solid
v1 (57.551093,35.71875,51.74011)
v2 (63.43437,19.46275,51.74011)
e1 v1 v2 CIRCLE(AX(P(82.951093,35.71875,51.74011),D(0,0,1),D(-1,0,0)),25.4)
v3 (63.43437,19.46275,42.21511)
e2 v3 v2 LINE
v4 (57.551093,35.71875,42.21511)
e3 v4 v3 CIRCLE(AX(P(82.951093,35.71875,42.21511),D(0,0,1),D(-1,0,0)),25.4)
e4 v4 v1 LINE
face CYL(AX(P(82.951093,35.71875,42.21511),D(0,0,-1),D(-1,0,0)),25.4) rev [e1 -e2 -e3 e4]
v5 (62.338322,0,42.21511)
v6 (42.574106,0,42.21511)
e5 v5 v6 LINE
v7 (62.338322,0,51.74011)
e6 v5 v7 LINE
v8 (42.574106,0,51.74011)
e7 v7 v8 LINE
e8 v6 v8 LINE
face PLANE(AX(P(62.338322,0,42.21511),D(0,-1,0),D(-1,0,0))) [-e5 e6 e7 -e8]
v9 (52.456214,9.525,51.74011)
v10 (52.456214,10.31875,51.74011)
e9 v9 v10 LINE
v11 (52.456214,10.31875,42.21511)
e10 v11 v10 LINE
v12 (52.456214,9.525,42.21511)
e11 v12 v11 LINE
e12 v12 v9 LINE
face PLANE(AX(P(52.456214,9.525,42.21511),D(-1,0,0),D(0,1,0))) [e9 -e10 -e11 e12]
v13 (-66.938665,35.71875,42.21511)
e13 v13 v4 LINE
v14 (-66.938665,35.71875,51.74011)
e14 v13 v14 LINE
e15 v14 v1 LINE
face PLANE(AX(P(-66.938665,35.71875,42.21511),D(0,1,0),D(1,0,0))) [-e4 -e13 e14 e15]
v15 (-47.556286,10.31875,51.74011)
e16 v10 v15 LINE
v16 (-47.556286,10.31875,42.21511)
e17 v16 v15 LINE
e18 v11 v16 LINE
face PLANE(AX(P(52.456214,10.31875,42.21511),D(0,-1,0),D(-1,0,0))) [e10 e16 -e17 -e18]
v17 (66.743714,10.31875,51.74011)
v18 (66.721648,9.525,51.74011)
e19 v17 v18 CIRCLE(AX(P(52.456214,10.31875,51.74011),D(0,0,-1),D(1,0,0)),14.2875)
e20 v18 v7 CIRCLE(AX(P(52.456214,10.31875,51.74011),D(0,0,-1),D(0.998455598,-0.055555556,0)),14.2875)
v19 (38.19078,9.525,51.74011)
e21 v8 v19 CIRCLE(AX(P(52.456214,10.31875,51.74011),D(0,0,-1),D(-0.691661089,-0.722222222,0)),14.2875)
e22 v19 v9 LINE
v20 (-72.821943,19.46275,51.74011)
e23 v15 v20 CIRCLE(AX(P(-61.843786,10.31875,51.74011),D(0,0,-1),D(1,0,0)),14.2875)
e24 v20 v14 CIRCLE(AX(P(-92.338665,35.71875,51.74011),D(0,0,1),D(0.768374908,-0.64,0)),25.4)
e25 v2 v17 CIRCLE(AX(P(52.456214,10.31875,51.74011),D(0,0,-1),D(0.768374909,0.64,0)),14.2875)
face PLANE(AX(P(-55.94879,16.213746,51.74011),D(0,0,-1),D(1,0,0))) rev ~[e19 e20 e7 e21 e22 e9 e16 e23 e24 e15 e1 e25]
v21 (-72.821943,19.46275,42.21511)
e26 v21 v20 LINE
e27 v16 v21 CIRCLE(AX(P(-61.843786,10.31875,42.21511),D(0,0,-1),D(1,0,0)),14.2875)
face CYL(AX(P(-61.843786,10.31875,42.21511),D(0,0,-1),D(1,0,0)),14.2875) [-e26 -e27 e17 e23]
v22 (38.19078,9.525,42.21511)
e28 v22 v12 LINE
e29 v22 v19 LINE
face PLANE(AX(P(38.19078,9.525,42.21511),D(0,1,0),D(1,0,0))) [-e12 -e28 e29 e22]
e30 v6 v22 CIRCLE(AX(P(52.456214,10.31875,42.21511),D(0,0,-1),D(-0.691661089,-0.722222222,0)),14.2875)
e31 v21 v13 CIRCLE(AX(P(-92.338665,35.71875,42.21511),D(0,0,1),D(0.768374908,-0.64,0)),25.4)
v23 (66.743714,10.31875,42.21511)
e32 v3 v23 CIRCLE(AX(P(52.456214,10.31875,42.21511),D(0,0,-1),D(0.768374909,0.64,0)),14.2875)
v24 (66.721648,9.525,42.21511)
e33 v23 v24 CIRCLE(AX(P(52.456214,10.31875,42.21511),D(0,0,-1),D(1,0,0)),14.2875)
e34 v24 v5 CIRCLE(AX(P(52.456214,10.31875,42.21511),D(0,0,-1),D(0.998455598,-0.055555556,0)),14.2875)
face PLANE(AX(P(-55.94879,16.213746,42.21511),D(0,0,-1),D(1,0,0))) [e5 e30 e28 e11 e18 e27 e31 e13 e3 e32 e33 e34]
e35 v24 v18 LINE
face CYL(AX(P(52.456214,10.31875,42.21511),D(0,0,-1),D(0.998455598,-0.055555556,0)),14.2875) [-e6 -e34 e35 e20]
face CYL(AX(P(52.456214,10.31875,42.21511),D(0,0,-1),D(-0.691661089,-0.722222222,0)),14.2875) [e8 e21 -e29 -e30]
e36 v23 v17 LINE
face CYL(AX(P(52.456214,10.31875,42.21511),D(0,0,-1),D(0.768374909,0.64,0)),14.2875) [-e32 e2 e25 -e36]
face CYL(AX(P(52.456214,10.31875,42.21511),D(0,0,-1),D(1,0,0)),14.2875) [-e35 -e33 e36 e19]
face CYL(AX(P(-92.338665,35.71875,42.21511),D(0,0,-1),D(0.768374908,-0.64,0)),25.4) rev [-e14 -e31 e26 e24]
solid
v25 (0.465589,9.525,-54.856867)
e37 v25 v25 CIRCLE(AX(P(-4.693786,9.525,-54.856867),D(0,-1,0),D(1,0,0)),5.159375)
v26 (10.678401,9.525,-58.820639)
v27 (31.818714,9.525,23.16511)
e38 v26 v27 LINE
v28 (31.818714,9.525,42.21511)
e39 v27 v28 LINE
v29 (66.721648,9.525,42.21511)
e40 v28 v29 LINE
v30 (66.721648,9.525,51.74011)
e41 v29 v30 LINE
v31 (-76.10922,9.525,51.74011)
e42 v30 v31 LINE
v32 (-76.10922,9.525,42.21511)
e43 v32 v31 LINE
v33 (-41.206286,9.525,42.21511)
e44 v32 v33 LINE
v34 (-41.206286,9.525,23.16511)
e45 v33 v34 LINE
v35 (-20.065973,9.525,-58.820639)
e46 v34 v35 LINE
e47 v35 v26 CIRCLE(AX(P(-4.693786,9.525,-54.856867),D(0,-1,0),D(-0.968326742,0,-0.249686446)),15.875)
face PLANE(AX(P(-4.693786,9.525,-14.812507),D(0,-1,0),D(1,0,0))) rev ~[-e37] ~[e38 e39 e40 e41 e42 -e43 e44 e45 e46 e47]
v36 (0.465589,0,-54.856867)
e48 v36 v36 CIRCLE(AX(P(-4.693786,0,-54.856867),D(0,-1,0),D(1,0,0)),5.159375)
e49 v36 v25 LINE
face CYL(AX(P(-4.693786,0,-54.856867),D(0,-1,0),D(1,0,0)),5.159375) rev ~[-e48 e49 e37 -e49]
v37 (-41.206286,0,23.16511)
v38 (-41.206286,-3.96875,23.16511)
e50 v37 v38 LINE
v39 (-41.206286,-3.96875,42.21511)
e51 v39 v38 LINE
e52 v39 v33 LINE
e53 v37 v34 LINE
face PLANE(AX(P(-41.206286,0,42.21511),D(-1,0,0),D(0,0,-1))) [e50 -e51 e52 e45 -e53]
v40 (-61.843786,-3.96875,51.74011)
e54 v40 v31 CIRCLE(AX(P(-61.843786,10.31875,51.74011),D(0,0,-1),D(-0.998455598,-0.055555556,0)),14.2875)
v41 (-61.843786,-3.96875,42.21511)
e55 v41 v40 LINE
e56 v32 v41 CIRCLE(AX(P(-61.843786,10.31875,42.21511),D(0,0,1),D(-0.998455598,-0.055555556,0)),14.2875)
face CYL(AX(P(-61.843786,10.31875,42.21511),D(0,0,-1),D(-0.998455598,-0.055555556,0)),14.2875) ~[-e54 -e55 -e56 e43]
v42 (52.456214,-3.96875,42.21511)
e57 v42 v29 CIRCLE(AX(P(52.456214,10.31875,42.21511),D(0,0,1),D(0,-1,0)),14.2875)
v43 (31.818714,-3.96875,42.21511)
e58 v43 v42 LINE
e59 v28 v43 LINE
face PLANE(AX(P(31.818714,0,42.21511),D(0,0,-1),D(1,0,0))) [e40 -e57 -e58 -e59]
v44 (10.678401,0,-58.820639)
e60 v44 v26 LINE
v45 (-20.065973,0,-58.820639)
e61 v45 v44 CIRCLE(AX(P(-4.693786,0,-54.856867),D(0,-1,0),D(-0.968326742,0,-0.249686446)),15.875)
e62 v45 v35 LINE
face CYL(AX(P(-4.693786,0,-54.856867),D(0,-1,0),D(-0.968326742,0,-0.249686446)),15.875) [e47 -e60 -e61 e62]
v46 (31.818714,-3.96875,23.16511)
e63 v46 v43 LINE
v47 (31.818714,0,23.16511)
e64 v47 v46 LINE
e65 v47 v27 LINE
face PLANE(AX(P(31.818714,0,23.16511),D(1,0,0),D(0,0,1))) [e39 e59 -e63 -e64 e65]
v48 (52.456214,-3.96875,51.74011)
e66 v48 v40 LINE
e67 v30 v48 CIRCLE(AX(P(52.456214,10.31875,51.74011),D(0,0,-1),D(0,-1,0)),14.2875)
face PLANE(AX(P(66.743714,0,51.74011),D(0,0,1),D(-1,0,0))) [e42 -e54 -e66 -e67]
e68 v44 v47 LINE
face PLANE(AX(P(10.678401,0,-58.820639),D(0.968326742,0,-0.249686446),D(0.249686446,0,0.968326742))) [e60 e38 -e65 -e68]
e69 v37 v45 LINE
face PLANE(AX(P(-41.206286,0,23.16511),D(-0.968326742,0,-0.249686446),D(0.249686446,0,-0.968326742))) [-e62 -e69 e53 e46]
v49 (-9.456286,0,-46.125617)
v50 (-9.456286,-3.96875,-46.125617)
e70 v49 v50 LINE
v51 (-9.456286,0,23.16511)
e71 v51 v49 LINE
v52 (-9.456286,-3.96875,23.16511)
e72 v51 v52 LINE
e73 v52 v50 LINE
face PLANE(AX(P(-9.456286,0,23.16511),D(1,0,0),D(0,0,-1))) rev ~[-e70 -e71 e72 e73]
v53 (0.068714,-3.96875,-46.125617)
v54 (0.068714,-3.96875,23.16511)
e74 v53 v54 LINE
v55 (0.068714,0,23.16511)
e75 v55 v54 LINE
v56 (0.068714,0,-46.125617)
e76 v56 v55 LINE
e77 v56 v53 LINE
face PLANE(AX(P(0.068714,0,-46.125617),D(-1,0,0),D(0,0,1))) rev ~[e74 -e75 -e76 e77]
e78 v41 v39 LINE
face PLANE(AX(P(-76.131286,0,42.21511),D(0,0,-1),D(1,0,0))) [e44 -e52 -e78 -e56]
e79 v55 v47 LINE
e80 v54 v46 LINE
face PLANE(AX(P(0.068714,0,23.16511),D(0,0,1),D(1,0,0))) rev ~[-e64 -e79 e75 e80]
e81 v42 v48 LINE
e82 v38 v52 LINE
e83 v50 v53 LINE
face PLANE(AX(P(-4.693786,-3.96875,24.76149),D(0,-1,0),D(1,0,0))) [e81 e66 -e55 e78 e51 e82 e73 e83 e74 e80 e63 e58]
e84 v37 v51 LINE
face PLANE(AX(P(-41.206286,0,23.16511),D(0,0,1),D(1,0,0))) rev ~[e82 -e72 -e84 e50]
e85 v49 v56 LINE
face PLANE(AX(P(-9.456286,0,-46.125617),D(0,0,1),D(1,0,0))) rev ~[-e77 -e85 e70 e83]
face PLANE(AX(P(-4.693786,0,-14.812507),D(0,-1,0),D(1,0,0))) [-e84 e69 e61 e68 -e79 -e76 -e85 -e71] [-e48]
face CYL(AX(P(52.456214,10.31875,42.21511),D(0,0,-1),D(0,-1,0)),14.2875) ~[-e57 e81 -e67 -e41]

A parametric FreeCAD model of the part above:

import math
import FreeCAD as App
import Part
import Sketcher
Q = App.Units.Quantity


def add_polygon(sketch, points):
    """Adds a closed chain of lines whose ends are joined by coincident constraints."""
    first, n = sketch.GeometryCount, len(points)
    for a, b in zip(points, points[1:] + points[:1]):
        sketch.addGeometry(Part.LineSegment(App.Vector(*a, 0), App.Vector(*b, 0)), False)
    for i in range(n):
        sketch.addConstraint(Sketcher.Constraint("Coincident", first + i, 2, first + (i + 1) % n, 1))

doc = App.newDocument("Part")
body = doc.addObject("PartDesign::Body", "Body")

# Sketch on XZ plane
sketch1 = body.newObject("Sketcher::SketchObject", "Sketch")
sketch1.AttachmentSupport = (doc.getObject("XZ_Plane"), [""])
sketch1.MapMode = "FlatFace"
add_polygon(sketch1, [(-41, 42), (-41, 23), (-9, 23), (-9, -46), (0, -46), (0, 23), (32, 23), (32, 42), (67, 42), (67, 52), (-76, 52), (-76, 42)])  # lines 0-11
sketch1.addConstraint([
    Sketcher.Constraint("Vertical", 0),
    Sketcher.Constraint("Horizontal", 1),
    Sketcher.Constraint("Vertical", 2),
    Sketcher.Constraint("Horizontal", 3),
    Sketcher.Constraint("Vertical", 4),
    Sketcher.Constraint("Horizontal", 5),
    Sketcher.Constraint("Vertical", 6),
    Sketcher.Constraint("Horizontal", 7),
    Sketcher.Constraint("Vertical", 8),
    Sketcher.Constraint("Horizontal", 9),
    Sketcher.Constraint("Vertical", 10),
    Sketcher.Constraint("Horizontal", 11),
    Sketcher.Constraint("Horizontal", 1, 2, 4, 2),
    Sketcher.Constraint("Horizontal", 7, 2, 10, 2),
    Sketcher.Constraint("Equal", 1, 5),
    Sketcher.Constraint("Equal", 7, 11),
    Sketcher.Constraint("Equal", 3, 8),
    Sketcher.Constraint("DistanceX", 1, 2, 7, 2, Q("3 in")),
    Sketcher.Constraint("DistanceX", 1, 1, 1, 2, Q("1.25 in")),
    Sketcher.Constraint("DistanceY", 0, 2, 0, 1, Q("0.75 in")),
    Sketcher.Constraint("DistanceX", 3, 1, 3, 2, Q("0.375 in")),
    Sketcher.Constraint("DistanceY", 2, 2, 2, 1, Q("69.290727 mm")),
    Sketcher.Constraint("DistanceY", -1, 1, 0, 2, Q("23.16511 mm")),
    Sketcher.Constraint("DistanceX", 0, 2, -1, 1, Q("41.206286 mm")),
])
pad1 = body.newObject("PartDesign::Pad", "Pad")
pad1.Profile = sketch1
pad1.Length = Q("0.15625 in")
body2 = doc.addObject("PartDesign::Body", "Body001")

# Sketch on XZ plane
sketch2 = body2.newObject("Sketcher::SketchObject", "Sketch001")
sketch2.AttachmentSupport = (doc.getObject("XZ_Plane001"), [""])
sketch2.MapMode = "FlatFace"
sketch2.addGeometry([
    Part.LineSegment(App.Vector(-41, 23, 0), App.Vector(-20, -59, 0)),  # 0
    Part.ArcOfCircle(Part.Circle(App.Vector(-5, -55, 0), App.Vector(0, 0, 1), 16), math.radians(-166), math.radians(-14)),  # 1
    Part.LineSegment(App.Vector(11, -59, 0), App.Vector(32, 23, 0)),  # 2
    Part.LineSegment(App.Vector(32, 23, 0), App.Vector(32, 42, 0)),  # 3
    Part.LineSegment(App.Vector(32, 42, 0), App.Vector(67, 42, 0)),  # 4
    Part.LineSegment(App.Vector(67, 42, 0), App.Vector(67, 52, 0)),  # 5
    Part.LineSegment(App.Vector(67, 52, 0), App.Vector(-76, 52, 0)),  # 6
    Part.LineSegment(App.Vector(-76, 52, 0), App.Vector(-76, 42, 0)),  # 7
    Part.LineSegment(App.Vector(-76, 42, 0), App.Vector(-41, 42, 0)),  # 8
    Part.LineSegment(App.Vector(-41, 42, 0), App.Vector(-41, 23, 0)),  # 9
    Part.Circle(App.Vector(-5, -55, 0), App.Vector(0, 0, 1), 5),  # 10
], False)
sketch2.addConstraint([
    Sketcher.Constraint("Tangent", 0, 2, 1, 1),
    Sketcher.Constraint("Tangent", 1, 2, 2, 1),
    Sketcher.Constraint("Coincident", 2, 2, 3, 1),
    Sketcher.Constraint("Coincident", 3, 2, 4, 1),
    Sketcher.Constraint("Coincident", 4, 2, 5, 1),
    Sketcher.Constraint("Coincident", 5, 2, 6, 1),
    Sketcher.Constraint("Coincident", 6, 2, 7, 1),
    Sketcher.Constraint("Coincident", 7, 2, 8, 1),
    Sketcher.Constraint("Coincident", 8, 2, 9, 1),
    Sketcher.Constraint("Coincident", 9, 2, 0, 1),
    Sketcher.Constraint("Vertical", 3),
    Sketcher.Constraint("Horizontal", 4),
    Sketcher.Constraint("Vertical", 5),
    Sketcher.Constraint("Horizontal", 6),
    Sketcher.Constraint("Vertical", 7),
    Sketcher.Constraint("Horizontal", 8),
    Sketcher.Constraint("Vertical", 9),
    Sketcher.Constraint("Coincident", 10, 3, 1, 3),
    Sketcher.Constraint("Horizontal", 0, 2, 1, 2),
    Sketcher.Constraint("Horizontal", 4, 2, 7, 2),
    Sketcher.Constraint("Horizontal", 2, 2, 9, 2),
    Sketcher.Constraint("Equal", 4, 8),
    Sketcher.Constraint("Diameter", 10, Q("0.40625 in")),
    Sketcher.Constraint("Radius", 1, Q("0.625 in")),
    Sketcher.Constraint("DistanceY", 3, 1, 3, 2, Q("0.75 in")),
    Sketcher.Constraint("DistanceX", 4, 1, 4, 2, Q("1.375 in")),
    Sketcher.Constraint("DistanceX", 6, 2, 6, 1, Q("5.625 in")),
    Sketcher.Constraint("DistanceY", 5, 1, 5, 2, Q("0.375 in")),
    Sketcher.Constraint("DistanceX", -1, 1, 1, 2, Q("10.678401 mm")),
    Sketcher.Constraint("DistanceY", 0, 2, -1, 1, Q("58.820639 mm")),
    Sketcher.Constraint("DistanceY", -1, 1, 2, 2, Q("23.16511 mm")),
])
pad2 = body2.newObject("PartDesign::Pad", "Pad001")
pad2.Profile = sketch2
pad2.Length = Q("0.375 in")
pad2.Reversed = True
body3 = doc.addObject("PartDesign::Body", "Body002")

# Sketch on XY plane
sketch3 = body3.newObject("Sketcher::SketchObject", "Sketch002")
sketch3.AttachmentSupport = (doc.getObject("XY_Plane002"), [""])
sketch3.MapMode = "FlatFace"
sketch3.AttachmentOffset = App.Placement(App.Vector(0, 0, 42.21511), App.Rotation())
sketch3.addGeometry([
    Part.ArcOfCircle(Part.Circle(App.Vector(-92.3, 35.7, 0), App.Vector(0, 0, 1), 25.4), math.radians(-40), math.radians(0)),  # 0
    Part.LineSegment(App.Vector(-66.9, 35.7, 0), App.Vector(57.6, 35.7, 0)),  # 1
    Part.ArcOfCircle(Part.Circle(App.Vector(83, 35.7, 0), App.Vector(0, 0, 1), 25.4), math.radians(180), math.radians(220)),  # 2
    Part.ArcOfCircle(Part.Circle(App.Vector(52.5, 10.3, 0), App.Vector(0, 0, 1), 14.3), math.radians(0), math.radians(40)),  # 3
    Part.ArcOfCircle(Part.Circle(App.Vector(52.5, 10.3, 0), App.Vector(0, 0, 1), 14.3), math.radians(-3.18), math.radians(0)),  # 4
    Part.ArcOfCircle(Part.Circle(App.Vector(52.5, 10.3, 0), App.Vector(0, 0, 1), 14.3), math.radians(-46), math.radians(-3)),  # 5
    Part.LineSegment(App.Vector(62.3, 0, 0), App.Vector(42.6, 0, 0)),  # 6
    Part.ArcOfCircle(Part.Circle(App.Vector(52.5, 10.3, 0), App.Vector(0, 0, 1), 14.3), math.radians(-177), math.radians(-134)),  # 7
    Part.LineSegment(App.Vector(38.2, 9.5, 0), App.Vector(52.5, 9.5, 0)),  # 8
    Part.LineSegment(App.Vector(52.5, 9.5, 0), App.Vector(52.5, 10.3, 0)),  # 9
    Part.LineSegment(App.Vector(52.5, 10.3, 0), App.Vector(-47.6, 10.3, 0)),  # 10
    Part.ArcOfCircle(Part.Circle(App.Vector(-61.8, 10.3, 0), App.Vector(0, 0, 1), 14.3), math.radians(140), math.radians(360)),  # 11
], False)
sketch3.addConstraint([
    Sketcher.Constraint("Coincident", 0, 2, 1, 1),
    Sketcher.Constraint("Coincident", 1, 2, 2, 1),
    Sketcher.Constraint("Tangent", 2, 2, 3, 2),
    Sketcher.Constraint("Tangent", 3, 1, 4, 2),
    Sketcher.Constraint("Tangent", 4, 1, 5, 2),
    Sketcher.Constraint("Coincident", 5, 1, 6, 1),
    Sketcher.Constraint("Coincident", 6, 2, 7, 2),
    Sketcher.Constraint("Coincident", 7, 1, 8, 1),
    Sketcher.Constraint("Coincident", 8, 2, 9, 1),
    Sketcher.Constraint("Coincident", 9, 2, 10, 1),
    Sketcher.Constraint("Coincident", 10, 2, 11, 2),
    Sketcher.Constraint("Tangent", 11, 1, 0, 1),
    Sketcher.Constraint("Horizontal", 1),
    Sketcher.Constraint("Horizontal", 6),
    Sketcher.Constraint("Horizontal", 8),
    Sketcher.Constraint("Vertical", 9),
    Sketcher.Constraint("Horizontal", 10),
    Sketcher.Constraint("Coincident", 5, 3, 3, 3),
    Sketcher.Constraint("Coincident", 7, 3, 3, 3),
    Sketcher.Constraint("Coincident", 9, 2, 3, 3),
    Sketcher.Constraint("Equal", 0, 2),
    Sketcher.Constraint("Equal", 5, 7),
    Sketcher.Constraint("Equal", 7, 11),
    Sketcher.Constraint("PointOnObject", 5, 1, -1),
    Sketcher.Constraint("Horizontal", 0, 3, 2, 3),
    Sketcher.Constraint("Horizontal", 7, 3, 11, 3),
    Sketcher.Constraint("Horizontal", 2, 3, 0, 2),
    Sketcher.Constraint("Horizontal", 11, 3, 3, 1),
    Sketcher.Constraint("Horizontal", 4, 1, 7, 1),
    Sketcher.Constraint("Radius", 0, Q("1 in")),
    Sketcher.Constraint("Radius", 3, Q("0.5625 in")),
    Sketcher.Constraint("DistanceY", 3, 3, 2, 3, Q("1 in")),
    Sketcher.Constraint("DistanceX", 11, 3, 4, 3, Q("4.5 in")),
    Sketcher.Constraint("DistanceY", 9, 1, 9, 2, Q("0.03125 in")),
    Sketcher.Constraint("DistanceY", -1, 1, 0, 3, Q("1.40625 in")),
    Sketcher.Constraint("DistanceX", -1, 1, 2, 2, Q("63.43437 mm")),
])
pad3 = body3.newObject("PartDesign::Pad", "Pad002")
pad3.Profile = sketch3
pad3.Length = Q("0.375 in")
doc.recompute()

boolean = body.newObject("PartDesign::Boolean", "Boolean")
boolean.Type = "Fuse"
boolean.addObjects([body2])

# Sketch on XY plane
sketch4 = body.newObject("Sketcher::SketchObject", "Sketch003")
sketch4.AttachmentSupport = (doc.getObject("XY_Plane"), [""])
sketch4.MapMode = "FlatFace"
sketch4.AttachmentOffset = App.Placement(App.Vector(0, 0, 42.21511), App.Rotation())
sketch4.addGeometry([
    Part.LineSegment(App.Vector(-76.131, 9.525, 0), App.Vector(-76.109, 9.525, 0)),  # 0
    Part.ArcOfCircle(Part.Circle(App.Vector(-61.844, 10.319, 0), App.Vector(0, 0, 1), 14.287), math.radians(-177), math.radians(-90)),  # 1
    Part.LineSegment(App.Vector(-61.844, -3.969, 0), App.Vector(-76.131, -3.969, 0)),  # 2
    Part.LineSegment(App.Vector(-76.131, -3.969, 0), App.Vector(-76.131, 9.525, 0)),  # 3
    Part.ArcOfCircle(Part.Circle(App.Vector(52.456, 10.319, 0), App.Vector(0, 0, 1), 14.287), math.radians(-90), math.radians(-3)),  # 4
    Part.LineSegment(App.Vector(66.722, 9.525, 0), App.Vector(66.744, 9.525, 0)),  # 5
    Part.LineSegment(App.Vector(66.744, 9.525, 0), App.Vector(66.744, -3.969, 0)),  # 6
    Part.LineSegment(App.Vector(66.744, -3.969, 0), App.Vector(52.456, -3.969, 0)),  # 7
], False)
sketch4.addConstraint([
    Sketcher.Constraint("Coincident", 0, 2, 1, 1),
    Sketcher.Constraint("Tangent", 1, 2, 2, 1),
    Sketcher.Constraint("Coincident", 2, 2, 3, 1),
    Sketcher.Constraint("Coincident", 3, 2, 0, 1),
    Sketcher.Constraint("Coincident", 4, 2, 5, 1),
    Sketcher.Constraint("Coincident", 5, 2, 6, 1),
    Sketcher.Constraint("Coincident", 6, 2, 7, 1),
    Sketcher.Constraint("Tangent", 7, 2, 4, 1),
    Sketcher.Constraint("Horizontal", 0),
    Sketcher.Constraint("Horizontal", 2),
    Sketcher.Constraint("Vertical", 3),
    Sketcher.Constraint("Horizontal", 5),
    Sketcher.Constraint("Vertical", 6),
    Sketcher.Constraint("Horizontal", 7),
    Sketcher.Constraint("Equal", 1, 4),
    Sketcher.Constraint("Horizontal", 1, 3, 4, 3),
    Sketcher.Constraint("Horizontal", 3, 2, 4, 2),
    Sketcher.Constraint("Equal", 0, 5),
    Sketcher.Constraint("Radius", 1, Q("0.5625 in")),
    Sketcher.Constraint("DistanceX", 1, 3, 4, 3, Q("4.5 in")),
    Sketcher.Constraint("DistanceX", 2, 2, 2, 1, Q("0.5625 in")),
    Sketcher.Constraint("DistanceY", 3, 1, 3, 2, Q("0.53125 in")),
    Sketcher.Constraint("DistanceY", -1, 1, 1, 3, Q("0.40625 in")),
    Sketcher.Constraint("DistanceX", 0, 2, -1, 1, Q("76.10922 mm")),
])
pocket1 = body.newObject("PartDesign::Pocket", "Pocket")
pocket1.Profile = sketch4
pocket1.Type = "ThroughAll"
pocket1.Reversed = True

doc.recompute()
